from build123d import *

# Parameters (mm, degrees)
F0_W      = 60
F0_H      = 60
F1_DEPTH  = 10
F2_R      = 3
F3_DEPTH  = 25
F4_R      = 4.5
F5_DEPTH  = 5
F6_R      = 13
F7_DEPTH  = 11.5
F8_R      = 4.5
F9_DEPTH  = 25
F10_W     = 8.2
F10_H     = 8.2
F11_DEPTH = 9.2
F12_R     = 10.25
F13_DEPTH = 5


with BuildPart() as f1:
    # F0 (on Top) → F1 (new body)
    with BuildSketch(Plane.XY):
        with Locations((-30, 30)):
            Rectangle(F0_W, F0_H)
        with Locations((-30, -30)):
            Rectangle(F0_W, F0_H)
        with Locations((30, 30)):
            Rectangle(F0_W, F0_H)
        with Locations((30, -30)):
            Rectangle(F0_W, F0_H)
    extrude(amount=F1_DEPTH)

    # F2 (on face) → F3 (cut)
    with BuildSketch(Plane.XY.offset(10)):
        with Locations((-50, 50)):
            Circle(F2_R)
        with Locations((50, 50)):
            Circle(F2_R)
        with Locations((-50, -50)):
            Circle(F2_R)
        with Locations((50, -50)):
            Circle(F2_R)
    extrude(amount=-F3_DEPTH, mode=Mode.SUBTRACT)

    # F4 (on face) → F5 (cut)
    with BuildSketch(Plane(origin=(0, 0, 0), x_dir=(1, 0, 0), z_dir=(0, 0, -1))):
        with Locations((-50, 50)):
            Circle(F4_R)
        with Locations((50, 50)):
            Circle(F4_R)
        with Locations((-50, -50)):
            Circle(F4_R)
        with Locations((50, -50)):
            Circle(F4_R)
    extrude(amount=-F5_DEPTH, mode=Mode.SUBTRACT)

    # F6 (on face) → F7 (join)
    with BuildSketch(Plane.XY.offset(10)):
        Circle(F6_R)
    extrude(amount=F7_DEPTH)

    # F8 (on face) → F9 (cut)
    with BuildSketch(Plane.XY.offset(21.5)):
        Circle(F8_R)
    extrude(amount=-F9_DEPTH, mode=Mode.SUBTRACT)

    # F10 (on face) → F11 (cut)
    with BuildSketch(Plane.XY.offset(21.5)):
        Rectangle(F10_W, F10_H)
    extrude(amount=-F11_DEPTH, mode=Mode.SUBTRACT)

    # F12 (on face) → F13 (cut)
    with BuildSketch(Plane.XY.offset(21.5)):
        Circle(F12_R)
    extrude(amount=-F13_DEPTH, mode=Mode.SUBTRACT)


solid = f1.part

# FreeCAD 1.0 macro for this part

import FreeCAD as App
import Part
import Sketcher

doc = App.newDocument("Part")
body = doc.addObject("PartDesign::Body", "Body")

# Sketch on XY plane
sketch1 = doc.addObject("Sketcher::SketchObject", "Sketch")
body.addObject(sketch1)
sketch1.AttachmentSupport = (doc.XY_Plane, [""])
sketch1.MapMode = "FlatFace"
sketch1.addGeometry([
    Part.LineSegment(App.Vector(-60, 60, 0), App.Vector(-60, -60, 0)),
    Part.LineSegment(App.Vector(-60, -60, 0), App.Vector(60, -60, 0)),
    Part.LineSegment(App.Vector(60, -60, 0), App.Vector(60, 60, 0)),
    Part.LineSegment(App.Vector(60, 60, 0), App.Vector(-60, 60, 0)),
], False)
sketch1.addConstraint([
    Sketcher.Constraint("Coincident", 0, 2, 1, 1),
    Sketcher.Constraint("Coincident", 1, 2, 2, 1),
    Sketcher.Constraint("Coincident", 2, 2, 3, 1),
    Sketcher.Constraint("Coincident", 3, 2, 0, 1),
    Sketcher.Constraint("Vertical", 0),
    Sketcher.Constraint("Horizontal", 1),
    Sketcher.Constraint("Vertical", 2),
    Sketcher.Constraint("Horizontal", 3),
    Sketcher.Constraint("Symmetric", 0, 2, 2, 2, -1, 1),
    Sketcher.Constraint("Equal", 3, 0),
    Sketcher.Constraint("DistanceX", 1, 1, 1, 2, 120.0),
])
pad1 = doc.addObject("PartDesign::Pad", "Pad")
body.addObject(pad1)
pad1.Profile = sketch1
pad1.Length = 10

# Sketch on XY plane
sketch2 = doc.addObject("Sketcher::SketchObject", "Sketch001")
body.addObject(sketch2)
sketch2.AttachmentSupport = (doc.XY_Plane, [""])
sketch2.MapMode = "FlatFace"
sketch2.AttachmentOffset = App.Placement(App.Vector(0, 0, 10), App.Rotation())
sketch2.addGeometry([
    Part.Circle(App.Vector(-50, 50, 0), App.Vector(0, 0, 1), 3),
    Part.Circle(App.Vector(50, 50, 0), App.Vector(0, 0, 1), 3),
    Part.Circle(App.Vector(-50, -50, 0), App.Vector(0, 0, 1), 3),
    Part.Circle(App.Vector(50, -50, 0), App.Vector(0, 0, 1), 3),
], False)
sketch2.addConstraint([
    Sketcher.Constraint("Equal", 0, 1),
    Sketcher.Constraint("Equal", 1, 2),
    Sketcher.Constraint("Equal", 2, 3),
    Sketcher.Constraint("Symmetric", 1, 3, 2, 3, -1, 1),
    Sketcher.Constraint("Symmetric", 0, 3, 3, 3, -1, 1),
    Sketcher.Constraint("Symmetric", 0, 3, 1, 3, -2),
    Sketcher.Constraint("Diameter", 0, 6.0),
    Sketcher.Constraint("DistanceX", 0, 3, -1, 1, 50.0),
    Sketcher.Constraint("DistanceY", -1, 1, 0, 3, 50.0),
])
pocket1 = doc.addObject("PartDesign::Pocket", "Pocket")
body.addObject(pocket1)
pocket1.Profile = sketch2
pocket1.Length = 25

# Sketch on XY plane
sketch3 = doc.addObject("Sketcher::SketchObject", "Sketch002")
body.addObject(sketch3)
sketch3.AttachmentSupport = (doc.XY_Plane, [""])
sketch3.MapMode = "FlatFace"
sketch3.addGeometry([
    Part.Circle(App.Vector(-50, -50, 0), App.Vector(0, 0, 1), 4.5),
    Part.Circle(App.Vector(50, -50, 0), App.Vector(0, 0, 1), 4.5),
    Part.Circle(App.Vector(-50, 50, 0), App.Vector(0, 0, 1), 4.5),
    Part.Circle(App.Vector(50, 50, 0), App.Vector(0, 0, 1), 4.5),
], False)
sketch3.addConstraint([
    Sketcher.Constraint("Equal", 0, 1),
    Sketcher.Constraint("Equal", 1, 2),
    Sketcher.Constraint("Equal", 2, 3),
    Sketcher.Constraint("Symmetric", 1, 3, 2, 3, -1, 1),
    Sketcher.Constraint("Symmetric", 0, 3, 3, 3, -1, 1),
    Sketcher.Constraint("Symmetric", 0, 3, 1, 3, -2),
    Sketcher.Constraint("Diameter", 0, 9.0),
    Sketcher.Constraint("DistanceX", 0, 3, -1, 1, 50.0),
    Sketcher.Constraint("DistanceY", 0, 3, -1, 1, 50.0),
])
pocket2 = doc.addObject("PartDesign::Pocket", "Pocket001")
body.addObject(pocket2)
pocket2.Profile = sketch3
pocket2.Length = 5
pocket2.Reversed = True

# Sketch on XY plane
sketch4 = doc.addObject("Sketcher::SketchObject", "Sketch003")
body.addObject(sketch4)
sketch4.AttachmentSupport = (doc.XY_Plane, [""])
sketch4.MapMode = "FlatFace"
sketch4.AttachmentOffset = App.Placement(App.Vector(0, 0, 10), App.Rotation())
sketch4.addGeometry(Part.Circle(App.Vector(0, 0, 0), App.Vector(0, 0, 1), 13), False)
sketch4.addConstraint([
    Sketcher.Constraint("Coincident", 0, 3, -1, 1),
    Sketcher.Constraint("Diameter", 0, 26.0),
])
pad2 = doc.addObject("PartDesign::Pad", "Pad001")
body.addObject(pad2)
pad2.Profile = sketch4
pad2.Length = 11.5

# Sketch on XY plane
sketch5 = doc.addObject("Sketcher::SketchObject", "Sketch004")
body.addObject(sketch5)
sketch5.AttachmentSupport = (doc.XY_Plane, [""])
sketch5.MapMode = "FlatFace"
sketch5.AttachmentOffset = App.Placement(App.Vector(0, 0, 21.5), App.Rotation())
sketch5.addGeometry(Part.Circle(App.Vector(0, 0, 0), App.Vector(0, 0, 1), 4.5), False)
sketch5.addConstraint([
    Sketcher.Constraint("Coincident", 0, 3, -1, 1),
    Sketcher.Constraint("Diameter", 0, 9.0),
])
pocket3 = doc.addObject("PartDesign::Pocket", "Pocket002")
body.addObject(pocket3)
pocket3.Profile = sketch5
pocket3.Length = 25

# Sketch on XY plane
sketch6 = doc.addObject("Sketcher::SketchObject", "Sketch005")
body.addObject(sketch6)
sketch6.AttachmentSupport = (doc.XY_Plane, [""])
sketch6.MapMode = "FlatFace"
sketch6.AttachmentOffset = App.Placement(App.Vector(0, 0, 21.5), App.Rotation())
sketch6.addGeometry([
    Part.LineSegment(App.Vector(-4, 4, 0), App.Vector(-4, -4, 0)),
    Part.LineSegment(App.Vector(-4, -4, 0), App.Vector(4, -4, 0)),
    Part.LineSegment(App.Vector(4, -4, 0), App.Vector(4, 4, 0)),
    Part.LineSegment(App.Vector(4, 4, 0), App.Vector(-4, 4, 0)),
], False)
sketch6.addConstraint([
    Sketcher.Constraint("Coincident", 0, 2, 1, 1),
    Sketcher.Constraint("Coincident", 1, 2, 2, 1),
    Sketcher.Constraint("Coincident", 2, 2, 3, 1),
    Sketcher.Constraint("Coincident", 3, 2, 0, 1),
    Sketcher.Constraint("Vertical", 0),
    Sketcher.Constraint("Horizontal", 1),
    Sketcher.Constraint("Vertical", 2),
    Sketcher.Constraint("Horizontal", 3),
    Sketcher.Constraint("Symmetric", 0, 2, 2, 2, -1, 1),
    Sketcher.Constraint("Equal", 3, 0),
    Sketcher.Constraint("DistanceX", 1, 1, 1, 2, 8.2),
])
pocket4 = doc.addObject("PartDesign::Pocket", "Pocket003")
body.addObject(pocket4)
pocket4.Profile = sketch6
pocket4.Length = 9.2

# Sketch on XY plane
sketch7 = doc.addObject("Sketcher::SketchObject", "Sketch006")
body.addObject(sketch7)
sketch7.AttachmentSupport = (doc.XY_Plane, [""])
sketch7.MapMode = "FlatFace"
sketch7.AttachmentOffset = App.Placement(App.Vector(0, 0, 21.5), App.Rotation())
sketch7.addGeometry(Part.Circle(App.Vector(0, 0, 0), App.Vector(0, 0, 1), 10), False)
sketch7.addConstraint([
    Sketcher.Constraint("Coincident", 0, 3, -1, 1),
    Sketcher.Constraint("Diameter", 0, 20.5),
])
pocket5 = doc.addObject("PartDesign::Pocket", "Pocket004")
body.addObject(pocket5)
pocket5.Profile = sketch7
pocket5.Length = 5

doc.recompute()
